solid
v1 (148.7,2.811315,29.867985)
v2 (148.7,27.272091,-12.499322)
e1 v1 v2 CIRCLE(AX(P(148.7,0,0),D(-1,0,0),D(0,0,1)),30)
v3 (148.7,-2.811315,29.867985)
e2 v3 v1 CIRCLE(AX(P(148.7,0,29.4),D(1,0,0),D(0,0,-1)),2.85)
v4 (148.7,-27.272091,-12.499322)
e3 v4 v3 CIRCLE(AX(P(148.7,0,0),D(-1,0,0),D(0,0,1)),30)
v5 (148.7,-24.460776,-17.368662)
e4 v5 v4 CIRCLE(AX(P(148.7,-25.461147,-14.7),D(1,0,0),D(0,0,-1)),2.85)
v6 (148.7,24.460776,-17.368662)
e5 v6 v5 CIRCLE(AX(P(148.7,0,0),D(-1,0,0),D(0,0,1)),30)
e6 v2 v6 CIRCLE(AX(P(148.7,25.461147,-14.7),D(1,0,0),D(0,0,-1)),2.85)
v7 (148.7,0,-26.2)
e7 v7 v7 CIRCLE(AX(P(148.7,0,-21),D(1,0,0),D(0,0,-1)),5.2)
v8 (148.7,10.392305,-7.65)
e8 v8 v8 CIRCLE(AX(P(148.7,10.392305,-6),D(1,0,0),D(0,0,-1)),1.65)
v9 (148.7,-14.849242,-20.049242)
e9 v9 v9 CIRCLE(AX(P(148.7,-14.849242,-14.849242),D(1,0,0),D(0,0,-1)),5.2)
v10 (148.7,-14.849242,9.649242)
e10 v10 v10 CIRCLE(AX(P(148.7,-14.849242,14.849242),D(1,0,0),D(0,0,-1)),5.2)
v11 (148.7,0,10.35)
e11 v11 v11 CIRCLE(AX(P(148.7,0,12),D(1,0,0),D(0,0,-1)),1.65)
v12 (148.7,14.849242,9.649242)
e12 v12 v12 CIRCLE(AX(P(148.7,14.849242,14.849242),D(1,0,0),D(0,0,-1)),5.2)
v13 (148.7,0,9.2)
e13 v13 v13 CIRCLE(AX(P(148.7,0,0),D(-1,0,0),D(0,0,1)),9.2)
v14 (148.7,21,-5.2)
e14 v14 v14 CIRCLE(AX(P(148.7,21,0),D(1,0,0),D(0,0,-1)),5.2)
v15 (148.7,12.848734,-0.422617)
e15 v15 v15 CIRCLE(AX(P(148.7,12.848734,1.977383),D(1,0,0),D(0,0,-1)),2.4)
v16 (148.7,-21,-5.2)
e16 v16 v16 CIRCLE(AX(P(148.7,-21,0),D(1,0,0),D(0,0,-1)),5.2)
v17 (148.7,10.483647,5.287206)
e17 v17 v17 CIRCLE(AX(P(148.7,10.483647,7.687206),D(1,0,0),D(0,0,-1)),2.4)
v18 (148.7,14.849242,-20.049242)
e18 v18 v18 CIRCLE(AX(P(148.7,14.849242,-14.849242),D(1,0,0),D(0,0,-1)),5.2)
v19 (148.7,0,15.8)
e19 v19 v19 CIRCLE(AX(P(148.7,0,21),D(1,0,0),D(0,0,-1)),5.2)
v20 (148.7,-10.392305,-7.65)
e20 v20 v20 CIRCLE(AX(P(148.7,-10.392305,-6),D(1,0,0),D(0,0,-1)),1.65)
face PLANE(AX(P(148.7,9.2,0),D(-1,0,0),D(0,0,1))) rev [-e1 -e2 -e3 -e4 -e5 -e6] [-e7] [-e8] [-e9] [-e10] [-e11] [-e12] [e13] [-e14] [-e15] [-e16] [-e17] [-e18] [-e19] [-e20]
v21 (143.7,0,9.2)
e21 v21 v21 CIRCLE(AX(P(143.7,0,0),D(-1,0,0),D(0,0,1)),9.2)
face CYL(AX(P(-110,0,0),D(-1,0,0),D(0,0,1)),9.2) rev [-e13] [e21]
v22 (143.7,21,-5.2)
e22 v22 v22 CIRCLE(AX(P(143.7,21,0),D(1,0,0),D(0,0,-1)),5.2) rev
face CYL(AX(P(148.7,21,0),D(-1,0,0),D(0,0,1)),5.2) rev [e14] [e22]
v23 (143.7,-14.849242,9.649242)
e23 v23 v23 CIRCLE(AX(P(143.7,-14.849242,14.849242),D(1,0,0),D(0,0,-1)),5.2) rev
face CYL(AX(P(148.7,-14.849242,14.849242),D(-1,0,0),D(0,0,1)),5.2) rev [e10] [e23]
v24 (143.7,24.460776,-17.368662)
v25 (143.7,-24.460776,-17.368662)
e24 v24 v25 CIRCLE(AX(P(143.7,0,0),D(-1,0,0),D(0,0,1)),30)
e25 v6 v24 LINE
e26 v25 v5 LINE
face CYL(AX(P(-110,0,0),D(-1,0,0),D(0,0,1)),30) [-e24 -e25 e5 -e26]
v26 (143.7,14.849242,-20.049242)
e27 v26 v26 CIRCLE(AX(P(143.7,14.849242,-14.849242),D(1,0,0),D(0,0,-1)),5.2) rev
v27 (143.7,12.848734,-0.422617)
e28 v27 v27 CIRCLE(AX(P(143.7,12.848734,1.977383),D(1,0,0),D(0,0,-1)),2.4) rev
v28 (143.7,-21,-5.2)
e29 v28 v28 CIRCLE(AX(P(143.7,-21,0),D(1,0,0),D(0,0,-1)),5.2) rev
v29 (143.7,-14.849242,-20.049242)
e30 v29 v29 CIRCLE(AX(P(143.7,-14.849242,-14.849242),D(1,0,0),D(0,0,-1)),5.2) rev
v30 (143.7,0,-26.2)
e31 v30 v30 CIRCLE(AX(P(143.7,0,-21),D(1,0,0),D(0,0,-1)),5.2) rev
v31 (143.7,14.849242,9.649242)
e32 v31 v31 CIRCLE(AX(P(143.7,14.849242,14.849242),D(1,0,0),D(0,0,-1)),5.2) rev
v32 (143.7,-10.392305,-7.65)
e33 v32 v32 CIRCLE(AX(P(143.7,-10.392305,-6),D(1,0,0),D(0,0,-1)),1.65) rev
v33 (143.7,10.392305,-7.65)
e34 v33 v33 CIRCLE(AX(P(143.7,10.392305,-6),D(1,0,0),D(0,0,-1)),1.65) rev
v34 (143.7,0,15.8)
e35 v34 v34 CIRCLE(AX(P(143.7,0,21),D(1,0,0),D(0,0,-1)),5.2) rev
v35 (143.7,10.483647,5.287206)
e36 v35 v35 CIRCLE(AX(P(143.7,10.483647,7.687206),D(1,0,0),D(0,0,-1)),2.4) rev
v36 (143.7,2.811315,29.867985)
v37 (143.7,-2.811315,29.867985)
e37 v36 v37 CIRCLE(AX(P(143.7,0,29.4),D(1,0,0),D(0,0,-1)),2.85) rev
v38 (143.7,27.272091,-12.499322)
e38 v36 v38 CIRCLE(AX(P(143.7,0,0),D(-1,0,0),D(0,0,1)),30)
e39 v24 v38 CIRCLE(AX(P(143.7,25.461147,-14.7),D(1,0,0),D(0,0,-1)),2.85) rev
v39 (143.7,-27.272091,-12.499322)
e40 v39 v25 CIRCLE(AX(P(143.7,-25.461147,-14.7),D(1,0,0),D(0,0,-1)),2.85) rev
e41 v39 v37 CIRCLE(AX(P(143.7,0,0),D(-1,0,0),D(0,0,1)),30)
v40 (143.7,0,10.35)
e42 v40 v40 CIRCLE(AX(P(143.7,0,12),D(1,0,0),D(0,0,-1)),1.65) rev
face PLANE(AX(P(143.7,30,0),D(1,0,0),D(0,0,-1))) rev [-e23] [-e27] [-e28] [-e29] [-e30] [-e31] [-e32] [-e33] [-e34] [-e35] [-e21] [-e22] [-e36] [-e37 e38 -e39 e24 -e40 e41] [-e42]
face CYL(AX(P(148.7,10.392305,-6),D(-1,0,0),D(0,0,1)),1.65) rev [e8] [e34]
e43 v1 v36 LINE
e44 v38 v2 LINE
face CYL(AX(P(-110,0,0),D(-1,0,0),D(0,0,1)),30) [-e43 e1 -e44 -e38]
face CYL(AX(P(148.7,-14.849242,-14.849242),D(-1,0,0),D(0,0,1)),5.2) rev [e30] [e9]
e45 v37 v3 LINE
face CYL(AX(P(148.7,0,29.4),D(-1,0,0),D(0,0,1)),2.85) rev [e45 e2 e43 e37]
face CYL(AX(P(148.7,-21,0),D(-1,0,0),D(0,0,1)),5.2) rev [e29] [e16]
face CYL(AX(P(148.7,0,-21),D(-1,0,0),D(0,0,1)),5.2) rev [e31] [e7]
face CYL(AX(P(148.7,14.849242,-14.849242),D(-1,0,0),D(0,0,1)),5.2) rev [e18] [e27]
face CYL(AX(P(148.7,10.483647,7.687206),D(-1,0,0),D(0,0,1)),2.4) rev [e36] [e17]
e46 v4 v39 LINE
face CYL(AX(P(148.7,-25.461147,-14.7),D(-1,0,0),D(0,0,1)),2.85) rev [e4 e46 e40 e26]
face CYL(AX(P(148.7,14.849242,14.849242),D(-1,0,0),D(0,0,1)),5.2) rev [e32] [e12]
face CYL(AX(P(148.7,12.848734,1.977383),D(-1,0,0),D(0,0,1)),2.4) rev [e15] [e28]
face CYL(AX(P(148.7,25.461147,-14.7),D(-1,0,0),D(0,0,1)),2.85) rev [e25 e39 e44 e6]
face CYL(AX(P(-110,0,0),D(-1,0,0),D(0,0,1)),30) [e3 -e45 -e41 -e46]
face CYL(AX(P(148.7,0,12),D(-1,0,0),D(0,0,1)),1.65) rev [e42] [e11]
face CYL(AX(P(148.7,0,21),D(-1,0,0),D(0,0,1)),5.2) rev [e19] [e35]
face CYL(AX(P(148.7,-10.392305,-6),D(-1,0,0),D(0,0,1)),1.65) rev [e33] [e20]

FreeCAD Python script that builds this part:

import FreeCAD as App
import Part
import Sketcher

V = App.Vector
Q = App.Units.Quantity


def add_polygon(sketch, points):
    """Adds a closed chain of lines whose ends are joined by coincident constraints."""
    first, n = sketch.GeometryCount, len(points)
    for a, b in zip(points, points[1:] + points[:1]):
        sketch.addGeometry(Part.LineSegment(App.Vector(*a, 0), App.Vector(*b, 0)), False)
    for i in range(n):
        sketch.addConstraint(Sketcher.Constraint("Coincident", first + i, 2, first + (i + 1) % n, 1))

doc = App.newDocument("Part")
params = doc.addObject("Spreadsheet::Sheet", "Params")
for row, (alias, value) in enumerate([
    ("sketch1_width", "5 mm"),
    ("sketch1_height", "20.8 mm"),
    ("revolution_angle", "360 deg"),
    ("sketch2_diameter", "10.4 mm"),
    ("sketch2_diameter2", "4.8 mm"),
    ("sketch2_diameter3", "3.3 mm"),
    ("sketch2_diameter4", "5.7 mm"),
], start=1):
    params.set(f"A{row}", alias)
    params.set(f"B{row}", "=" + value)
    params.setAlias(f"B{row}", alias)

body = doc.addObject("PartDesign::Body", "Body")

# Sketch on XY plane
sketch1 = body.newObject("Sketcher::SketchObject", "Sketch")
sketch1.AttachmentSupport = (doc.getObject("XY_Plane"), [""])
sketch1.MapMode = "FlatFace"
add_polygon(sketch1, [(144, 30), (144, 9), (149, 9), (149, 30)])  # lines 0-3
sketch1.addConstraint(Sketcher.Constraint("Vertical", 0))
sketch1.addConstraint(Sketcher.Constraint("Horizontal", 1))
sketch1.addConstraint(Sketcher.Constraint("Vertical", 2))
sketch1.addConstraint(Sketcher.Constraint("Horizontal", 3))
sketch1.addConstraint(Sketcher.Constraint("DistanceX", 1, 1, 1, 2, Q("5 mm")))
sketch1.addConstraint(Sketcher.Constraint("DistanceY", 0, 2, 0, 1, Q("20.8 mm")))
sketch1.addConstraint(Sketcher.Constraint("DistanceY", -1, 1, 2, 2, Q("30 mm")))
sketch1.addConstraint(Sketcher.Constraint("DistanceX", -1, 1, 0, 2, Q("143.7 mm")))
sketch1.setExpression("Constraints[8]", "Params.sketch1_width")
sketch1.setExpression("Constraints[9]", "Params.sketch1_height")
revolution = body.newObject("PartDesign::Revolution", "Revolution")
revolution.Profile = sketch1
revolution.ReferenceAxis = (sketch1, ["H_Axis"])
revolution.setExpression("Angle", "Params.revolution_angle")

# Sketch on YZ plane
sketch2 = body.newObject("Sketcher::SketchObject", "Sketch001")
sketch2.AttachmentSupport = (doc.getObject("YZ_Plane"), [""])
sketch2.MapMode = "FlatFace"
sketch2.addGeometry(Part.Circle(V(21, 0, 0), V(0, 0, 1), 5.2), False)
sketch2.addGeometry(Part.Circle(V(14.8, 14.8, 0), V(0, 0, 1), 5.2), False)
sketch2.addGeometry(Part.Circle(V(0, 21, 0), V(0, 0, 1), 5.2), False)
sketch2.addGeometry(Part.Circle(V(-14.8, 14.8, 0), V(0, 0, 1), 5.2), False)
sketch2.addGeometry(Part.Circle(V(-21, 0, 0), V(0, 0, 1), 5.2), False)
sketch2.addGeometry(Part.Circle(V(-14.8, -14.8, 0), V(0, 0, 1), 5.2), False)
sketch2.addGeometry(Part.Circle(V(0, -21, 0), V(0, 0, 1), 5.2), False)
sketch2.addGeometry(Part.Circle(V(14.8, -14.8, 0), V(0, 0, 1), 5.2), False)
sketch2.addGeometry(Part.Circle(V(12.8, 2, 0), V(0, 0, 1), 2.4), False)
sketch2.addGeometry(Part.Circle(V(10.5, 7.7, 0), V(0, 0, 1), 2.4), False)
sketch2.addGeometry(Part.Circle(V(0, 12, 0), V(0, 0, 1), 1.6), False)
sketch2.addGeometry(Part.Circle(V(-10.4, -6, 0), V(0, 0, 1), 1.6), False)
sketch2.addGeometry(Part.Circle(V(10.4, -6, 0), V(0, 0, 1), 1.6), False)
sketch2.addGeometry(Part.Circle(V(0, 29.4, 0), V(0, 0, 1), 2.9), False)
sketch2.addGeometry(Part.Circle(V(-25.5, -14.7, 0), V(0, 0, 1), 2.9), False)
sketch2.addGeometry(Part.Circle(V(25.5, -14.7, 0), V(0, 0, 1), 2.9), False)
sketch2.addConstraint(Sketcher.Constraint("Equal", 0, 1))
sketch2.addConstraint(Sketcher.Constraint("Equal", 1, 2))
sketch2.addConstraint(Sketcher.Constraint("Equal", 2, 3))
sketch2.addConstraint(Sketcher.Constraint("Equal", 3, 4))
sketch2.addConstraint(Sketcher.Constraint("Equal", 4, 5))
sketch2.addConstraint(Sketcher.Constraint("Equal", 5, 6))
sketch2.addConstraint(Sketcher.Constraint("Equal", 6, 7))
sketch2.addConstraint(Sketcher.Constraint("Equal", 8, 9))
sketch2.addConstraint(Sketcher.Constraint("Equal", 10, 11))
sketch2.addConstraint(Sketcher.Constraint("Equal", 11, 12))
sketch2.addConstraint(Sketcher.Constraint("Equal", 13, 14))
sketch2.addConstraint(Sketcher.Constraint("Equal", 14, 15))
sketch2.addConstraint(Sketcher.Constraint("Symmetric", 0, 3, 4, 3, -1, 1))
sketch2.addConstraint(Sketcher.Constraint("Symmetric", 1, 3, 5, 3, -1, 1))
sketch2.addConstraint(Sketcher.Constraint("Symmetric", 2, 3, 6, 3, -1, 1))
sketch2.addConstraint(Sketcher.Constraint("Symmetric", 3, 3, 7, 3, -1, 1))
sketch2.addConstraint(Sketcher.Constraint("Symmetric", 1, 3, 3, 3, -2))
sketch2.addConstraint(Sketcher.Constraint("Symmetric", 11, 3, 12, 3, -2))
sketch2.addConstraint(Sketcher.Constraint("Symmetric", 14, 3, 15, 3, -2))
sketch2.addConstraint(Sketcher.Constraint("PointOnObject", 0, 3, -1))
sketch2.addConstraint(Sketcher.Constraint("PointOnObject", 2, 3, -2))
sketch2.addConstraint(Sketcher.Constraint("PointOnObject", 10, 3, -2))
sketch2.addConstraint(Sketcher.Constraint("PointOnObject", 13, 3, -2))
sketch2.addConstraint(Sketcher.Constraint("Diameter", 0, Q("10.4 mm")))
sketch2.addConstraint(Sketcher.Constraint("Diameter", 8, Q("4.8 mm")))
sketch2.addConstraint(Sketcher.Constraint("Diameter", 10, Q("3.3 mm")))
sketch2.addConstraint(Sketcher.Constraint("Diameter", 13, Q("5.7 mm")))
sketch2.addConstraint(Sketcher.Constraint("DistanceX", -1, 1, 0, 3, Q("21 mm")))
sketch2.addConstraint(Sketcher.Constraint("DistanceY", -1, 1, 2, 3, Q("21 mm")))
sketch2.addConstraint(Sketcher.Constraint("DistanceY", -1, 1, 10, 3, Q("12 mm")))
sketch2.addConstraint(Sketcher.Constraint("DistanceY", 11, 3, -1, 1, Q("6 mm")))
sketch2.addConstraint(Sketcher.Constraint("DistanceY", -1, 1, 13, 3, Q("29.4 mm")))
sketch2.addConstraint(Sketcher.Constraint("DistanceY", 14, 3, -1, 1, Q("14.7 mm")))
sketch2.addConstraint(Sketcher.Constraint("DistanceX", 8, 3, 1, 3, Q("2.000509 mm")))
sketch2.addConstraint(Sketcher.Constraint("DistanceY", 8, 3, 1, 3, Q("12.87186 mm")))
sketch2.addConstraint(Sketcher.Constraint("DistanceY", 7, 3, 9, 3, Q("22.536448 mm")))
sketch2.addConstraint(Sketcher.Constraint("DistanceX", 12, 3, 8, 3, Q("2.456429 mm")))
sketch2.addConstraint(Sketcher.Constraint("DistanceX", -1, 1, 1, 3, Q("14.849242 mm")))
sketch2.addConstraint(Sketcher.Constraint("DistanceY", -1, 1, 1, 3, Q("14.849242 mm")))
sketch2.addConstraint(Sketcher.Constraint("DistanceX", -1, 1, 9, 3, Q("10.483647 mm")))
sketch2.addConstraint(Sketcher.Constraint("DistanceX", 14, 3, -1, 1, Q("25.461147 mm")))
sketch2.setExpression("Constraints[23]", "Params.sketch2_diameter")
sketch2.setExpression("Constraints[24]", "Params.sketch2_diameter2")
sketch2.setExpression("Constraints[25]", "Params.sketch2_diameter3")
sketch2.setExpression("Constraints[26]", "Params.sketch2_diameter4")
pocket1 = body.newObject("PartDesign::Pocket", "Pocket")
pocket1.Profile = sketch2
pocket1.Type = "ThroughAll"
pocket1.Midplane = True

doc.recompute()
